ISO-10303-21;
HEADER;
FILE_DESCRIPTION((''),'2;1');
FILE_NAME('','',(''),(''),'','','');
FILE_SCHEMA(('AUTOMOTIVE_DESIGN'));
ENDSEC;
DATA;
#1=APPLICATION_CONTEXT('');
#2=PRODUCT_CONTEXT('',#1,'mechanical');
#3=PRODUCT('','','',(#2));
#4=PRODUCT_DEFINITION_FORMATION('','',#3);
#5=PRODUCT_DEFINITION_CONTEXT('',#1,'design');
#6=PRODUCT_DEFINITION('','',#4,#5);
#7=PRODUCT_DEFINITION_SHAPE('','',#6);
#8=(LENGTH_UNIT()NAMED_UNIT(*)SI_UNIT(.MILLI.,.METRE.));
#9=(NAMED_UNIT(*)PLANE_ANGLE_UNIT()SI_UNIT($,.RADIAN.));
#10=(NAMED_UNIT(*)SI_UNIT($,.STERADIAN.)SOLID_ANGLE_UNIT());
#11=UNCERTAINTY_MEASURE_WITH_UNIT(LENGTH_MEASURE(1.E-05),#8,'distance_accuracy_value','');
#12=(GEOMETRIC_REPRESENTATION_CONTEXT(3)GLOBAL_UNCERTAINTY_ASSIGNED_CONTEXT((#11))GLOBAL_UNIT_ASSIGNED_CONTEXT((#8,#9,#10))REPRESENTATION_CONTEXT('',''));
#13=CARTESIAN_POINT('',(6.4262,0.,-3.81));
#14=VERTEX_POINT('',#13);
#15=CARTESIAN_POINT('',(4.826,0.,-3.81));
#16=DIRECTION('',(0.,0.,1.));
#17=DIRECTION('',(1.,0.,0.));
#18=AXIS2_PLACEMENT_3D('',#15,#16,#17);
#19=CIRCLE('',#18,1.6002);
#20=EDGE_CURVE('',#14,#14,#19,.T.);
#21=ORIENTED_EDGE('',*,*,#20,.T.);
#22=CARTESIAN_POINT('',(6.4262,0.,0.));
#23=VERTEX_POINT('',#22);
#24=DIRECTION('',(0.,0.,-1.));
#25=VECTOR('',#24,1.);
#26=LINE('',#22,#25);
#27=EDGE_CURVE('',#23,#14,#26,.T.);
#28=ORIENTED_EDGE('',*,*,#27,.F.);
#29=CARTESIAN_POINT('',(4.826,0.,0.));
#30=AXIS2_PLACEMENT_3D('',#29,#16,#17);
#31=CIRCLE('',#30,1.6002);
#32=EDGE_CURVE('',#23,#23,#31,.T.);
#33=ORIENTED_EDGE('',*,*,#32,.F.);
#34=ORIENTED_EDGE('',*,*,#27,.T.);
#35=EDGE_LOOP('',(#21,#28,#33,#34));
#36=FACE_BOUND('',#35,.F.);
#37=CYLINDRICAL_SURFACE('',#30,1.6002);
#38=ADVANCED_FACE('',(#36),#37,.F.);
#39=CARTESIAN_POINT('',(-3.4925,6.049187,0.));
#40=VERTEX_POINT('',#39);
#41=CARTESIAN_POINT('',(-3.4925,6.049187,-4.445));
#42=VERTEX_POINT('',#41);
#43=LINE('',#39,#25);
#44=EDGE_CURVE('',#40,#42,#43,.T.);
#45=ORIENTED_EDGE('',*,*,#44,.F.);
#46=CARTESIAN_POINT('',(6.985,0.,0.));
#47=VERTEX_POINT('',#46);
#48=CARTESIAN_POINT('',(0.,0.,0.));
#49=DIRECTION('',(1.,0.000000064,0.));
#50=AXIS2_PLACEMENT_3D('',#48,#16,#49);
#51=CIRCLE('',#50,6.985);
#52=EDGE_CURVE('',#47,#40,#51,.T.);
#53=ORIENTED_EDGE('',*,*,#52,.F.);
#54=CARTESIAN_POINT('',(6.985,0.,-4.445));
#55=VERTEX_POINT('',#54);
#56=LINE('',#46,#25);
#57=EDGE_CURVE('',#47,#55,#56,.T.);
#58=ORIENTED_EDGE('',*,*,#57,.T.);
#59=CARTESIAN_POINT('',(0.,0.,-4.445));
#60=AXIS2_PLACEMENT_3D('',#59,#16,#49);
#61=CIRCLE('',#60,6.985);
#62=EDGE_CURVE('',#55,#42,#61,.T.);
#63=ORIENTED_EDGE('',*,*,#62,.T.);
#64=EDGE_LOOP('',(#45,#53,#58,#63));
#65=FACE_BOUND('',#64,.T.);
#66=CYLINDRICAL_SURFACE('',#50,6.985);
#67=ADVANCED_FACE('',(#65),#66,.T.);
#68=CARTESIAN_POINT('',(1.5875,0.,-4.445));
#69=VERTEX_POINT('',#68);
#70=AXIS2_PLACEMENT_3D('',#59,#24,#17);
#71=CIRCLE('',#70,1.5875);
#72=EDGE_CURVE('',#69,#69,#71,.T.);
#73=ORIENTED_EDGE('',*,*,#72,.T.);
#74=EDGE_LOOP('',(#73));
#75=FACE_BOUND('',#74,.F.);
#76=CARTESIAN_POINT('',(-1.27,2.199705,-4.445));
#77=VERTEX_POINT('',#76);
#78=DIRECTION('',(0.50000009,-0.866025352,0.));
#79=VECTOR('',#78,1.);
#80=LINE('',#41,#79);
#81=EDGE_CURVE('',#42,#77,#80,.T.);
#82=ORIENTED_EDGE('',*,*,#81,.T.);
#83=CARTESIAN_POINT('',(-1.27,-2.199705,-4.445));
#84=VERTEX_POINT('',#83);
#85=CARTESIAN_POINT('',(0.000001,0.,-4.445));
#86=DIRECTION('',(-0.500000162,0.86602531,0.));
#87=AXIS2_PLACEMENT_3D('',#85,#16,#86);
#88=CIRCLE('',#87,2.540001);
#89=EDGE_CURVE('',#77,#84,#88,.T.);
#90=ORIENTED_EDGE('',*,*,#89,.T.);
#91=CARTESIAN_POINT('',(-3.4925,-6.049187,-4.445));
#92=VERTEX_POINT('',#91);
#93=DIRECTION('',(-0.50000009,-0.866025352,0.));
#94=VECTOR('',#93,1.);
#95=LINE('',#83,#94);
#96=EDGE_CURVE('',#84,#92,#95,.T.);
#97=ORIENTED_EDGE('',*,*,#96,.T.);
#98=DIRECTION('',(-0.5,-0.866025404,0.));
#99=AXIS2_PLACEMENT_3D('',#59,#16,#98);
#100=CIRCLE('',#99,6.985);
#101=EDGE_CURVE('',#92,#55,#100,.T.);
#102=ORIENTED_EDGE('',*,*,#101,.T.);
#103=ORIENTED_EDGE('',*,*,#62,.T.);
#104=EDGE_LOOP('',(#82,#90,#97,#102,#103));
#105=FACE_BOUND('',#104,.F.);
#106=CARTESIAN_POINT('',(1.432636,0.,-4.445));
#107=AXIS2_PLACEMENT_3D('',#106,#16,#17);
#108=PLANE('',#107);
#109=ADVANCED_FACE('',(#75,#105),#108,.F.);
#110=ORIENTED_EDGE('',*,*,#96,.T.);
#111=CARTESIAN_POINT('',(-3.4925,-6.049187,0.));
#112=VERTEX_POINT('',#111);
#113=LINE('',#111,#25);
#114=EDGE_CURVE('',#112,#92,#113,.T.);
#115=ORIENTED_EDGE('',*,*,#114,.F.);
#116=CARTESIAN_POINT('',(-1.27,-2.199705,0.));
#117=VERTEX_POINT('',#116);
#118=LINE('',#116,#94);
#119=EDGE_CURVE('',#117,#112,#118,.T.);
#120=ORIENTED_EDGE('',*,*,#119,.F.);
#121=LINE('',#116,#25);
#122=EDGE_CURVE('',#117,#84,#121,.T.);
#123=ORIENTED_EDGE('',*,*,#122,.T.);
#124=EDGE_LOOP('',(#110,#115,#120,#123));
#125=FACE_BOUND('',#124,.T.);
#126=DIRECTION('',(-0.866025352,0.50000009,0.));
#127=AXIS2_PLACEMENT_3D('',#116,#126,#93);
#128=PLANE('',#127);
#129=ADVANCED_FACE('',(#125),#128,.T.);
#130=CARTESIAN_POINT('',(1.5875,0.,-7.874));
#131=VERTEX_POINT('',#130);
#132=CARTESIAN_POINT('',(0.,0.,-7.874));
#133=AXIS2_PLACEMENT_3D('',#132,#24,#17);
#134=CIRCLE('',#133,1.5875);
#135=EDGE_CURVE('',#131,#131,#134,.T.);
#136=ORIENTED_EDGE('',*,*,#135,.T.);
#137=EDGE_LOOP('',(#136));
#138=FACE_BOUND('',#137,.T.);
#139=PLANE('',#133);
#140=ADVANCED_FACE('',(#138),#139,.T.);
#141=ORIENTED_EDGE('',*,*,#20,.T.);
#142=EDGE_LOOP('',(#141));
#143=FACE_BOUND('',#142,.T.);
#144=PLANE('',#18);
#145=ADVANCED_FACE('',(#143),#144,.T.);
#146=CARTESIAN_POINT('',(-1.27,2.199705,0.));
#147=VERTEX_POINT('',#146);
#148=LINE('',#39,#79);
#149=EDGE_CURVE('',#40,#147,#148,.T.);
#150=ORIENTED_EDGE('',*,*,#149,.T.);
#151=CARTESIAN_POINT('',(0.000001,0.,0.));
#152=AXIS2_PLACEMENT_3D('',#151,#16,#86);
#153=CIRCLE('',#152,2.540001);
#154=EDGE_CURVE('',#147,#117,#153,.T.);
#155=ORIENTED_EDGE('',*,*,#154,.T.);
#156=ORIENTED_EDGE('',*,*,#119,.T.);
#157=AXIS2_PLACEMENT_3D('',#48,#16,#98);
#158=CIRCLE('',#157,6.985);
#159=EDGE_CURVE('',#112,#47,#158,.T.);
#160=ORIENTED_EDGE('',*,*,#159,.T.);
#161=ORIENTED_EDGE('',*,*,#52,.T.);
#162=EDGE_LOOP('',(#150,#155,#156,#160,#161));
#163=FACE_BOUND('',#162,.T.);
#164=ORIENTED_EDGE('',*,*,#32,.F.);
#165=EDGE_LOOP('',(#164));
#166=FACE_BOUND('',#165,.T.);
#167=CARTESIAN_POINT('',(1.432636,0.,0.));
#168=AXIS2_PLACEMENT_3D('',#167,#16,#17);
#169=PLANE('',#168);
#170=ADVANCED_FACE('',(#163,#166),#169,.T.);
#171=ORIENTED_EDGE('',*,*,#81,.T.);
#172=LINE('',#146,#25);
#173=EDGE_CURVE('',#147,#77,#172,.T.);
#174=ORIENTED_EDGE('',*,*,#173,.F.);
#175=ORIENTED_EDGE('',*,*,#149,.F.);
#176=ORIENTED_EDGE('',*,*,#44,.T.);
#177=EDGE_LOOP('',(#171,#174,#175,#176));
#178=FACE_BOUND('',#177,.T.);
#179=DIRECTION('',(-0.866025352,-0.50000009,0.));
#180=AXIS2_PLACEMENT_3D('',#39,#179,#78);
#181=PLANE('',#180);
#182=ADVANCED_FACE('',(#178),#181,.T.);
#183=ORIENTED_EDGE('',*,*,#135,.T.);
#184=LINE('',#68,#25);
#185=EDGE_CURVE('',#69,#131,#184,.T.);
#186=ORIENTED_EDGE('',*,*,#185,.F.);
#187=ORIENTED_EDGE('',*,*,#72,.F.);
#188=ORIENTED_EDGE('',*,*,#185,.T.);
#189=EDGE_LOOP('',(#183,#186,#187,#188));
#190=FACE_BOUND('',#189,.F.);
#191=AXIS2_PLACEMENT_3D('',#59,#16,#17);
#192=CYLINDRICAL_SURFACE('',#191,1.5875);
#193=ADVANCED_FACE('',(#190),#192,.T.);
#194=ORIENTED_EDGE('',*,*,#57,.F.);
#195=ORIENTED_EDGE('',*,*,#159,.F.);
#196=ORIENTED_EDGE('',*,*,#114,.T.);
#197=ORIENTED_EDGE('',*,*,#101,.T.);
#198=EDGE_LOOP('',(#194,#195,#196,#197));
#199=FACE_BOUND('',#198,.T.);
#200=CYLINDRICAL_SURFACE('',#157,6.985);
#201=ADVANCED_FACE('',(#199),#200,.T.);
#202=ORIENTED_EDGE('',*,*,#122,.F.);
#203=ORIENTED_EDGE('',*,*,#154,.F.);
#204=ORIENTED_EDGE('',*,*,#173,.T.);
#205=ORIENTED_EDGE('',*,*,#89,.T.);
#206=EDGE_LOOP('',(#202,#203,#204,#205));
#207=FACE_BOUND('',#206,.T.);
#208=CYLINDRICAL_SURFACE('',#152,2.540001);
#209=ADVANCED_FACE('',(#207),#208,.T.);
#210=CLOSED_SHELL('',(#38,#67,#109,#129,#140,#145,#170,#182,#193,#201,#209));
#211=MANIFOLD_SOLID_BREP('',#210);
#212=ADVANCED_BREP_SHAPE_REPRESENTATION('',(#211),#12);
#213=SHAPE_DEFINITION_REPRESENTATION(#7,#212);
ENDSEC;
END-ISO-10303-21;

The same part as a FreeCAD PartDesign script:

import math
import FreeCAD as App
import Part
import Sketcher
Q = App.Units.Quantity

doc = App.newDocument("Part")
body = doc.addObject("PartDesign::Body", "Body")

# Sketch on XY plane
sketch1 = doc.addObject("Sketcher::SketchObject", "Sketch")
body.addObject(sketch1)
sketch1.AttachmentSupport = (doc.XY_Plane, [""])
sketch1.MapMode = "FlatFace"
sketch1.addGeometry([
    Part.ArcOfCircle(Part.Circle(App.Vector(0, 0, 0), App.Vector(0, 0, 1), 6.985), math.radians(-120), math.radians(-0.000004)),  # 0
    Part.ArcOfCircle(Part.Circle(App.Vector(0, 0, 0), App.Vector(0, 0, 1), 6.985), math.radians(0.000004), math.radians(120)),  # 1
    Part.LineSegment(App.Vector(-3.4925, 6.049187, 0), App.Vector(-1.27, 2.199705, 0)),  # 2
    Part.ArcOfCircle(Part.Circle(App.Vector(0.000001, 0, 0), App.Vector(0, 0, 1), 2.540001), math.radians(120.000011), math.radians(239.999989)),  # 3
    Part.LineSegment(App.Vector(-1.27, -2.199705, 0), App.Vector(-3.4925, -6.049187, 0)),  # 4
], False)
sketch1.addConstraint([
    Sketcher.Constraint("Tangent", 0, 2, 1, 1),
    Sketcher.Constraint("Coincident", 1, 2, 2, 1),
    Sketcher.Constraint("Coincident", 2, 2, 3, 1),
    Sketcher.Constraint("Coincident", 3, 2, 4, 1),
    Sketcher.Constraint("Coincident", 4, 2, 0, 1),
    Sketcher.Constraint("Coincident", 0, 3, -1, 1),
    Sketcher.Constraint("Coincident", 3, 3, -1, 1),
    Sketcher.Constraint("Equal", 0, 1),
    Sketcher.Constraint("PointOnObject", 0, 2, -1),
    Sketcher.Constraint("Vertical", 2, 2, 3, 2),
    Sketcher.Constraint("Vertical", 1, 2, 4, 2),
    Sketcher.Constraint("Radius", 3, Q("0.1 in")),
    Sketcher.Constraint("Angle", 2, Q("-59.999994 deg")),
    Sketcher.Constraint("Radius", 0, Q("0.275 in")),
    Sketcher.Constraint("DistanceX", 2, 2, -1, 1, Q("0.05 in")),
])
pad1 = doc.addObject("PartDesign::Pad", "Pad")
body.addObject(pad1)
pad1.Profile = sketch1
pad1.Length = Q("0.175 in")
pad1.Reversed = True

# Sketch on XY plane
sketch2 = doc.addObject("Sketcher::SketchObject", "Sketch001")
body.addObject(sketch2)
sketch2.AttachmentSupport = (doc.XY_Plane, [""])
sketch2.MapMode = "FlatFace"
sketch2.addGeometry(Part.Circle(App.Vector(4.826, 0, 0), App.Vector(0, 0, 1), 1.6002), False)
sketch2.addConstraint([
    Sketcher.Constraint("PointOnObject", 0, 3, -1),
    Sketcher.Constraint("Diameter", 0, Q("0.126 in")),
    Sketcher.Constraint("DistanceX", -1, 1, 0, 3, Q("0.19 in")),
])
pocket1 = doc.addObject("PartDesign::Pocket", "Pocket")
body.addObject(pocket1)
pocket1.Profile = sketch2
pocket1.Length = Q("0.15 in")

# Sketch on XY plane
sketch3 = doc.addObject("Sketcher::SketchObject", "Sketch002")
body.addObject(sketch3)
sketch3.AttachmentSupport = (doc.XY_Plane, [""])
sketch3.MapMode = "FlatFace"
sketch3.AttachmentOffset = App.Placement(App.Vector(0, 0, -0.175 * 25.4), App.Rotation())
sketch3.addGeometry(Part.Circle(App.Vector(0, 0, 0), App.Vector(0, 0, 1), 1.5875), False)
sketch3.addConstraint([
    Sketcher.Constraint("Coincident", 0, 3, -1, 1),
    Sketcher.Constraint("Diameter", 0, Q("0.125 in")),
])
pad2 = doc.addObject("PartDesign::Pad", "Pad001")
body.addObject(pad2)
pad2.Profile = sketch3
pad2.Length = Q("0.135 in")
pad2.Reversed = True

doc.recompute()
